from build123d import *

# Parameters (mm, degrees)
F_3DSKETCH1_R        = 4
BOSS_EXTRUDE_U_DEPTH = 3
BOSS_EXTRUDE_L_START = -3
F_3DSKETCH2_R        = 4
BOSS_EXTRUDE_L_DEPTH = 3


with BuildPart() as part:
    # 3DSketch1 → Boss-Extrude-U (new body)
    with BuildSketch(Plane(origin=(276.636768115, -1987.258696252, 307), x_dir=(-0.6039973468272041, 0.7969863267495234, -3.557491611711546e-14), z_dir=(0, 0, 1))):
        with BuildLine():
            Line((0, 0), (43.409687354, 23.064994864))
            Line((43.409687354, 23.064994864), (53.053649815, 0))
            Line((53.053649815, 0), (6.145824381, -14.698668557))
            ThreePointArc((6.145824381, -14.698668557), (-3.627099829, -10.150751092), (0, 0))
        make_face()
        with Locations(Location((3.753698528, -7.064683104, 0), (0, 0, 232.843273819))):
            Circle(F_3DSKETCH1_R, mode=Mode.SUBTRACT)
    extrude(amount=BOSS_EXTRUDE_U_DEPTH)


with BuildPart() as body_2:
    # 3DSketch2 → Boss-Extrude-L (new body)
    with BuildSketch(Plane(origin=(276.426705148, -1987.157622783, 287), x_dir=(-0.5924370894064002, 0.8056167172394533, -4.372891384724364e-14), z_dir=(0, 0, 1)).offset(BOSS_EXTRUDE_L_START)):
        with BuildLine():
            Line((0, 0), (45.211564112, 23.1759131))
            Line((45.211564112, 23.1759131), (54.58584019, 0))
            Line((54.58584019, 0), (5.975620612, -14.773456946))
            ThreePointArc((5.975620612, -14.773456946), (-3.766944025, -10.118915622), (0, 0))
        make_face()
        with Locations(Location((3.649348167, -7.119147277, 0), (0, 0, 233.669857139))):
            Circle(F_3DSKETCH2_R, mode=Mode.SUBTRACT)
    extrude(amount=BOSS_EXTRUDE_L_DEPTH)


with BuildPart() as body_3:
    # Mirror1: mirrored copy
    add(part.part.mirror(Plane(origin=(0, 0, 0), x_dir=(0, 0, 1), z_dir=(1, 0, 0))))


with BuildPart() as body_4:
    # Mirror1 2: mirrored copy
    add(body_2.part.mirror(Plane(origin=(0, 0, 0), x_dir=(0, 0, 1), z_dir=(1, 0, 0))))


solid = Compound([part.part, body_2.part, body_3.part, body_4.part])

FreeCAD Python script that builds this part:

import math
import FreeCAD as App
import Part
import Sketcher
from FreeCAD import Vector
Q = App.Units.Quantity

doc = App.newDocument("Part")
params = doc.addObject("Spreadsheet::Sheet", "Params")
for row, (alias, value) in enumerate([
    ("sketch1_diameter", "8 mm"),
    ("sketch1_radius", "8 mm"),
    ("sketch1_length", "25 mm"),
    ("pad1_length", "3 mm"),
    ("sketch2_diameter", "8 mm"),
    ("sketch2_radius", "8 mm"),
    ("sketch2_length", "25 mm"),
    ("pad2_length", "3 mm"),
], start=1):
    params.set(f"A{row}", alias)
    params.set(f"B{row}", "=" + value)
    params.setAlias(f"B{row}", alias)

body = doc.addObject("PartDesign::Body", "Body")

sketch1 = body.newObject("Sketcher::SketchObject", "Sketch")
sketch1.AttachmentSupport = (doc.getObject("XY_Plane"), [""])
sketch1.MapMode = "FlatFace"
sketch1.AttachmentOffset = App.Placement(Vector(0, 0, 307), App.Rotation())
sketch1.addGeometry([
    Part.LineSegment(Vector(232.034947, -1966.592965, 0), Vector(276.636768, -1987.258696, 0)),
    Part.ArcOfCircle(Part.Circle(Vector(280, -1980, 0), Vector(0, 0, 1), 8), math.radians(-114.860095), math.radians(54.555221)),
    Part.LineSegment(Vector(284.639344, -1973.482601, 0), Vector(244.592504, -1944.975663, 0)),
    Part.LineSegment(Vector(244.592504, -1944.975663, 0), Vector(232.034947, -1966.592965, 0)),
    Part.Circle(Vector(280, -1980, 0), Vector(0, 0, 1), 4),
], False)
sketch1.addConstraint([
    Sketcher.Constraint("Coincident", 0, 2, 1, 1),
    Sketcher.Constraint("Coincident", 1, 2, 2, 1),
    Sketcher.Constraint("Coincident", 2, 2, 3, 1),
    Sketcher.Constraint("Coincident", 3, 2, 0, 1),
    Sketcher.Constraint("Coincident", 4, 3, 1, 3),
    Sketcher.Constraint("Diameter", 4, Q("8 mm")),
    Sketcher.Constraint("Radius", 1, Q("8 mm")),
    Sketcher.Constraint("Distance", 3, Q("25 mm")),
    Sketcher.Constraint("DistanceX", -1, 1, 1, 3, Q("280 mm")),
    Sketcher.Constraint("DistanceY", 1, 3, -1, 1, Q("1980 mm")),
    Sketcher.Constraint("DistanceY", 1, 2, -1, 1, Q("1973.482601 mm")),
    Sketcher.Constraint("DistanceY", 3, 2, 2, 2, Q("21.617302 mm")),
    Sketcher.Constraint("Distance", 0, Q("49.15684 mm")),
    Sketcher.Constraint("Distance", 2, Q("49.15684 mm")),
    Sketcher.Constraint("DistanceX", -1, 1, 0, 2, Q("276.636768 mm")),
])
sketch1.setExpression("Constraints[5]", "Params.sketch1_diameter")
sketch1.setExpression("Constraints[6]", "Params.sketch1_radius")
sketch1.setExpression("Constraints[7]", "Params.sketch1_length")
pad1 = body.newObject("PartDesign::Pad", "Pad")
pad1.Profile = sketch1
pad1.setExpression("Length", "Params.pad1_length")
body2 = doc.addObject("PartDesign::Body", "Body001")

sketch2 = body2.newObject("Sketcher::SketchObject", "Sketch001")
sketch2.AttachmentSupport = (doc.getObject("XY_Plane001"), [""])
sketch2.MapMode = "FlatFace"
sketch2.AttachmentOffset = App.Placement(Vector(0, 0, 284), App.Rotation())
sketch2.addGeometry([
    Part.LineSegment(Vector(231, -1964.5, 0), Vector(276.4, -1987.2, 0)),
    Part.ArcOfCircle(Part.Circle(Vector(280, -1980, 0), Vector(0, 0, 1), 8), math.radians(-117), math.radians(53)),
    Part.LineSegment(Vector(284.8, -1973.6, 0), Vector(244.1, -1943.2, 0)),
    Part.LineSegment(Vector(244.1, -1943.2, 0), Vector(231, -1964.5, 0)),
    Part.Circle(Vector(280, -1980, 0), Vector(0, 0, 1), 4),
], False)
sketch2.addConstraint([
    Sketcher.Constraint("Tangent", 0, 2, 1, 1),
    Sketcher.Constraint("Tangent", 1, 2, 2, 1),
    Sketcher.Constraint("Coincident", 2, 2, 3, 1),
    Sketcher.Constraint("Coincident", 3, 2, 0, 1),
    Sketcher.Constraint("Coincident", 4, 3, 1, 3),
    Sketcher.Constraint("Equal", 0, 2),
    Sketcher.Constraint("Diameter", 4, Q("8 mm")),
    Sketcher.Constraint("Radius", 1, Q("8 mm")),
    Sketcher.Constraint("Distance", 3, Q("25 mm")),
    Sketcher.Constraint("DistanceX", -1, 1, 1, 3, Q("280 mm")),
    Sketcher.Constraint("DistanceY", 1, 3, -1, 1, Q("1980 mm")),
    Sketcher.Constraint("DistanceY", 3, 2, -1, 1, Q("1964.464701 mm")),
    Sketcher.Constraint("DistanceX", -1, 1, 1, 2, Q("284.78827 mm")),
])
sketch2.setExpression("Constraints[6]", "Params.sketch2_diameter")
sketch2.setExpression("Constraints[7]", "Params.sketch2_radius")
sketch2.setExpression("Constraints[8]", "Params.sketch2_length")
pad2 = body2.newObject("PartDesign::Pad", "Pad001")
pad2.Profile = sketch2
pad2.setExpression("Length", "Params.pad2_length")
body3 = doc.addObject("PartDesign::Body", "Body002")
doc.recompute()

mirroring = doc.addObject("Part::Mirroring", "Mirroring")
mirroring.Source = body
mirroring.Base = Vector(0, 0, 0)
mirroring.Normal = Vector(1, 0, 0)
body3.BaseFeature = mirroring
doc.recompute()
body4 = doc.addObject("PartDesign::Body", "Body003")
doc.recompute()

mirroring2 = doc.addObject("Part::Mirroring", "Mirroring001")
mirroring2.Source = body2
mirroring2.Base = Vector(0, 0, 0)
mirroring2.Normal = Vector(1, 0, 0)
body4.BaseFeature = mirroring2
doc.recompute()
mirroring.Visibility = False
mirroring2.Visibility = False

doc.recompute()
